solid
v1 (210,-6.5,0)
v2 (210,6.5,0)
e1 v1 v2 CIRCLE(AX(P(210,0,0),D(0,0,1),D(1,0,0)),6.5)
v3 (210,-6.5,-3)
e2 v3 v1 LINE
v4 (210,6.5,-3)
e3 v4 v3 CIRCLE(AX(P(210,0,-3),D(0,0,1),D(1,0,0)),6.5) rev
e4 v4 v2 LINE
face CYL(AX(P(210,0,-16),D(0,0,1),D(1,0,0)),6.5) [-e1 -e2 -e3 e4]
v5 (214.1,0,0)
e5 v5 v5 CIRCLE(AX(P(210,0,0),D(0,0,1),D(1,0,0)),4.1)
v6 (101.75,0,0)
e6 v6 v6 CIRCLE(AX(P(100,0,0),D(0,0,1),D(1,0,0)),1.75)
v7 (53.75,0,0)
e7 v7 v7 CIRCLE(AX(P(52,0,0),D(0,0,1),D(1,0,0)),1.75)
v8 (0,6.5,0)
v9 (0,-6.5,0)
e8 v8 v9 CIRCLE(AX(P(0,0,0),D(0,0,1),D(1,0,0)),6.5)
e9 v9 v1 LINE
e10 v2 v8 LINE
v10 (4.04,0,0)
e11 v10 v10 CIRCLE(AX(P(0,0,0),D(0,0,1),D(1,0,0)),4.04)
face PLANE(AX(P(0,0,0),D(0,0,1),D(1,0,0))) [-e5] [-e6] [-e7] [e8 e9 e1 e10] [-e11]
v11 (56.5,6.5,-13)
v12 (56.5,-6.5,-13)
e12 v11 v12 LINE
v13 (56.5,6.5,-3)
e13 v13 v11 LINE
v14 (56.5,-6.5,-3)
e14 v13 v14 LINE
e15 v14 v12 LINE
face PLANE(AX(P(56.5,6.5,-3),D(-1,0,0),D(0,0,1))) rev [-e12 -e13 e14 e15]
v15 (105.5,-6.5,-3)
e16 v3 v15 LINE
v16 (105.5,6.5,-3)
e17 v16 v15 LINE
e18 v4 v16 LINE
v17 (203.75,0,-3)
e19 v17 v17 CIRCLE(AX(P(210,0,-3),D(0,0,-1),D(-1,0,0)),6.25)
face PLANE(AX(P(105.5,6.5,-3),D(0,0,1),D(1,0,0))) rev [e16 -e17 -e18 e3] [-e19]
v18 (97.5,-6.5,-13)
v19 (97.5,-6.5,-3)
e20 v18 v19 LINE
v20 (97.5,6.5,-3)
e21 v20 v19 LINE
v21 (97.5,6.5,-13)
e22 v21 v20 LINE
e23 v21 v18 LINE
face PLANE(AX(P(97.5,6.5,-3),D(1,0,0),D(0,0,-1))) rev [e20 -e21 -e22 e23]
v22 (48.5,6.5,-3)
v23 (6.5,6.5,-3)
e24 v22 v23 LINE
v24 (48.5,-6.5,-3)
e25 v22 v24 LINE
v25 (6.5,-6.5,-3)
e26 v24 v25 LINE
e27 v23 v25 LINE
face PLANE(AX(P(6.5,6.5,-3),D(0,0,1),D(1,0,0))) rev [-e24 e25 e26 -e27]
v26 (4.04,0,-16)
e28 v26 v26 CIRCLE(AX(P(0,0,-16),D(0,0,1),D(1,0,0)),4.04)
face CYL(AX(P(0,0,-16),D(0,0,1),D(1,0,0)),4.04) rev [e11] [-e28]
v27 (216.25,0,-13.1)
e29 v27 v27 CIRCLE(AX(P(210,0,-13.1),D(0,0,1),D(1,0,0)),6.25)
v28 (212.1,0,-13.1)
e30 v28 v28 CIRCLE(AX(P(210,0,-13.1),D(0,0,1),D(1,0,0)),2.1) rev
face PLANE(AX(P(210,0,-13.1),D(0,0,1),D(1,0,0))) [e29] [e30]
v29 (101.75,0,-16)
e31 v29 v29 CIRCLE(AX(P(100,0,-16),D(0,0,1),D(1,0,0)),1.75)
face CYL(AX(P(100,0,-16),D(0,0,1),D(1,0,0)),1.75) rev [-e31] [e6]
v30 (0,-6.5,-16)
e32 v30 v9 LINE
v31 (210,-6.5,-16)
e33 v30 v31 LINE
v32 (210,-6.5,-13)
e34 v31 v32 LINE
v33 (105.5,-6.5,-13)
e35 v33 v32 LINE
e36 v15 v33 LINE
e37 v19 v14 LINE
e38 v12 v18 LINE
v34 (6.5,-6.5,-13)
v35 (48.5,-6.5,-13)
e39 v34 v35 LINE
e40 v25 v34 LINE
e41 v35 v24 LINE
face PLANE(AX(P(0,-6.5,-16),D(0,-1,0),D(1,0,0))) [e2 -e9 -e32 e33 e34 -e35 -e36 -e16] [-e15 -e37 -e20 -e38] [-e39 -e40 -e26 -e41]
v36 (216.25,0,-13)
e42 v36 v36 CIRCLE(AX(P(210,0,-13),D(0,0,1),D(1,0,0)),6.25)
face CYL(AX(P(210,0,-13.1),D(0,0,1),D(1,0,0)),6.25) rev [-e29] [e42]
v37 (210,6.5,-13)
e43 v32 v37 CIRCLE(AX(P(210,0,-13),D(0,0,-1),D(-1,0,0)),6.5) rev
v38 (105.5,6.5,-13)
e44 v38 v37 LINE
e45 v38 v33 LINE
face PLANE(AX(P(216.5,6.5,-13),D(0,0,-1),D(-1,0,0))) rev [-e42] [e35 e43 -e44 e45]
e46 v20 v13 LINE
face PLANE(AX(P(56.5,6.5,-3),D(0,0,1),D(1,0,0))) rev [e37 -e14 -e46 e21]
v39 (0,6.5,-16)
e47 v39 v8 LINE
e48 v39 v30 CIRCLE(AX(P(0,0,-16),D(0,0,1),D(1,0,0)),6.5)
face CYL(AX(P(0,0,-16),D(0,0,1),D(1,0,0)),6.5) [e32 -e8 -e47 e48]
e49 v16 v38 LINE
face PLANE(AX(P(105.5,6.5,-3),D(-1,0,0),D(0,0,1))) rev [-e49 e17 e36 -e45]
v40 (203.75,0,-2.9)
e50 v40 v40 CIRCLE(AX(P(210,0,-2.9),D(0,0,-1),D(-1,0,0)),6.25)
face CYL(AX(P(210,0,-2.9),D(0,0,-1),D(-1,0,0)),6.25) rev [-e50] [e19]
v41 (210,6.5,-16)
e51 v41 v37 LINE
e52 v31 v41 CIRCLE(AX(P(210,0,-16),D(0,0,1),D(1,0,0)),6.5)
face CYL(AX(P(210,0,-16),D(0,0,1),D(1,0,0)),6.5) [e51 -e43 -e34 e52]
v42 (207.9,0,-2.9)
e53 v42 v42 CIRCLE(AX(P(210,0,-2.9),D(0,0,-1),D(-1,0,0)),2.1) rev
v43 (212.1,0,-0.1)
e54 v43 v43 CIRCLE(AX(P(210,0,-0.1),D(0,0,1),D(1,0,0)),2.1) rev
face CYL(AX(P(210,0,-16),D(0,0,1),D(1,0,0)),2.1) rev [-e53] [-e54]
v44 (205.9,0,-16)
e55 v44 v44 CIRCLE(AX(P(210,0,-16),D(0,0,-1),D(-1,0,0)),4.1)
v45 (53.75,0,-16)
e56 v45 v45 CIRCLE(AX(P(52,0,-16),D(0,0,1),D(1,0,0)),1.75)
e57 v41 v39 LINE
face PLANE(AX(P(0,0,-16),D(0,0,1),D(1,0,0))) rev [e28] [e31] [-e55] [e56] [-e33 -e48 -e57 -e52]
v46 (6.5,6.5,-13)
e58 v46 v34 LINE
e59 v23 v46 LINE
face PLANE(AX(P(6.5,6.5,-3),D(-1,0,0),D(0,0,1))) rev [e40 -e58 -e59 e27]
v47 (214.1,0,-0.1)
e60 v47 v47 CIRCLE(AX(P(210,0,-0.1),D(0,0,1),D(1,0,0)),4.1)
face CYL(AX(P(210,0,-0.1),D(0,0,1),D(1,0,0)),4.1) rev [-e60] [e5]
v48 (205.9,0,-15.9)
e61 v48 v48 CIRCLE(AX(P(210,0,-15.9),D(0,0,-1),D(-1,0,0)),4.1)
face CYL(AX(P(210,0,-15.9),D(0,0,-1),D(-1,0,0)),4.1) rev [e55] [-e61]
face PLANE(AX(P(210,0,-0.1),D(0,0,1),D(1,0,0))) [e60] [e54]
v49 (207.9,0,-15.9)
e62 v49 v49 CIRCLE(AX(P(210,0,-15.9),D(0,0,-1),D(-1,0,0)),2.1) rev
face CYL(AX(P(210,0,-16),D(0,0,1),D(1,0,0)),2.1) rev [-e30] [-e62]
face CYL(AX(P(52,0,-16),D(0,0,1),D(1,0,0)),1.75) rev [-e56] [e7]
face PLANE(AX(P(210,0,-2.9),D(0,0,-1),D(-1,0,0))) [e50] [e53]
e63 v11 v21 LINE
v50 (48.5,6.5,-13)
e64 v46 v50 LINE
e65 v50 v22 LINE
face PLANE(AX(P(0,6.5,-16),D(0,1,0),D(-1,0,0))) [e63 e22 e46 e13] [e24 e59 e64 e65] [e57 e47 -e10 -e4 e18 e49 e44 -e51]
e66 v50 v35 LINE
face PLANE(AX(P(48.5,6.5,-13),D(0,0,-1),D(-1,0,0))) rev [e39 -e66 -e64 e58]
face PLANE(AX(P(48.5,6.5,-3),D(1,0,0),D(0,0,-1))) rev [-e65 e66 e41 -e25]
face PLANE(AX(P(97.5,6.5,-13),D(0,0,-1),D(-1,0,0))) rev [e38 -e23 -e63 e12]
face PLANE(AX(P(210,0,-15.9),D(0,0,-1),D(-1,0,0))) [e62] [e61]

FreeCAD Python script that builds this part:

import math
import FreeCAD as App
import Part
import Sketcher

V = App.Vector


def add_polygon(sketch, points):
    """Adds a closed chain of lines whose ends are joined by coincident constraints."""
    first, n = sketch.GeometryCount, len(points)
    for a, b in zip(points, points[1:] + points[:1]):
        sketch.addGeometry(Part.LineSegment(App.Vector(*a, 0), App.Vector(*b, 0)), False)
    for i in range(n):
        sketch.addConstraint(Sketcher.Constraint("Coincident", first + i, 2, first + (i + 1) % n, 1))

doc = App.newDocument("Part")
body = doc.addObject("PartDesign::Body", "Body")

# Sketch on XY plane
sketch1 = doc.addObject("Sketcher::SketchObject", "Sketch")
body.addObject(sketch1)
sketch1.AttachmentSupport = (doc.XY_Plane, [""])
sketch1.MapMode = "FlatFace"
sketch1.addGeometry(Part.LineSegment(V(210, 6.5, 0), V(0, 6.5, 0)), False)
sketch1.addGeometry(Part.ArcOfCircle(Part.Circle(V(0, 0, 0), V(0, 0, 1), 6.5), math.radians(90), math.radians(270)), False)
sketch1.addGeometry(Part.LineSegment(V(0, -6.5, 0), V(210, -6.5, 0)), False)
sketch1.addGeometry(Part.ArcOfCircle(Part.Circle(V(210, 0, 0), V(0, 0, 1), 6.5), math.radians(-90), math.radians(90)), False)
sketch1.addGeometry(Part.Circle(V(210, 0, 0), V(0, 0, 1), 2.1), False)
sketch1.addGeometry(Part.Circle(V(100, 0, 0), V(0, 0, 1), 1.8), False)
sketch1.addGeometry(Part.Circle(V(52, 0, 0), V(0, 0, 1), 1.8), False)
sketch1.addGeometry(Part.Circle(V(0, 0, 0), V(0, 0, 1), 4), False)
sketch1.addConstraint(Sketcher.Constraint("Tangent", 0, 2, 1, 1))
sketch1.addConstraint(Sketcher.Constraint("Tangent", 1, 2, 2, 1))
sketch1.addConstraint(Sketcher.Constraint("Tangent", 2, 2, 3, 1))
sketch1.addConstraint(Sketcher.Constraint("Tangent", 3, 2, 0, 1))
sketch1.addConstraint(Sketcher.Constraint("Horizontal", 0))
sketch1.addConstraint(Sketcher.Constraint("Horizontal", 2))
sketch1.addConstraint(Sketcher.Constraint("Coincident", 1, 3, -1, 1))
sketch1.addConstraint(Sketcher.Constraint("Coincident", 7, 3, -1, 1))
sketch1.addConstraint(Sketcher.Constraint("Coincident", 4, 3, 3, 3))
sketch1.addConstraint(Sketcher.Constraint("Equal", 5, 6))
sketch1.addConstraint(Sketcher.Constraint("PointOnObject", 5, 3, -1))
sketch1.addConstraint(Sketcher.Constraint("PointOnObject", 6, 3, -1))
sketch1.addConstraint(Sketcher.Constraint("Diameter", 4, 4.2))
sketch1.addConstraint(Sketcher.Constraint("Diameter", 5, 3.5))
sketch1.addConstraint(Sketcher.Constraint("Radius", 1, 6.5))
sketch1.addConstraint(Sketcher.Constraint("Diameter", 7, 8.08))
sketch1.addConstraint(Sketcher.Constraint("DistanceX", 0, 2, 0, 1, 210.0))
sketch1.addConstraint(Sketcher.Constraint("DistanceX", -1, 1, 5, 3, 100.0))
sketch1.addConstraint(Sketcher.Constraint("DistanceX", -1, 1, 6, 3, 52.0))
pad1 = doc.addObject("PartDesign::Pad", "Pad")
body.addObject(pad1)
pad1.Profile = sketch1
pad1.Length = 16
pad1.Reversed = True

# Sketch on XZ plane
sketch2 = doc.addObject("Sketcher::SketchObject", "Sketch001")
body.addObject(sketch2)
sketch2.AttachmentSupport = (doc.XZ_Plane, [""])
sketch2.MapMode = "FlatFace"
sketch2.AttachmentOffset = App.Placement(V(0, 0, 6.5), App.Rotation())
add_polygon(sketch2, [(216, -3), (106, -3), (106, -13), (216, -13)])  # lines 0-3
add_polygon(sketch2, [(6, -3), (6, -13), (48, -13), (48, -3)])  # lines 4-7
add_polygon(sketch2, [(56, -3), (56, -13), (98, -13), (98, -3)])  # lines 8-11
sketch2.addConstraint(Sketcher.Constraint("Horizontal", 0))
sketch2.addConstraint(Sketcher.Constraint("Vertical", 1))
sketch2.addConstraint(Sketcher.Constraint("Horizontal", 2))
sketch2.addConstraint(Sketcher.Constraint("Vertical", 3))
sketch2.addConstraint(Sketcher.Constraint("Vertical", 4))
sketch2.addConstraint(Sketcher.Constraint("Horizontal", 5))
sketch2.addConstraint(Sketcher.Constraint("Vertical", 6))
sketch2.addConstraint(Sketcher.Constraint("Horizontal", 7))
sketch2.addConstraint(Sketcher.Constraint("Vertical", 8))
sketch2.addConstraint(Sketcher.Constraint("Horizontal", 9))
sketch2.addConstraint(Sketcher.Constraint("Vertical", 10))
sketch2.addConstraint(Sketcher.Constraint("Horizontal", 11))
sketch2.addConstraint(Sketcher.Constraint("Horizontal", 2, 2, 4, 2))
sketch2.addConstraint(Sketcher.Constraint("Horizontal", 3, 2, 6, 2))
sketch2.addConstraint(Sketcher.Constraint("Horizontal", 5, 2, 8, 2))
sketch2.addConstraint(Sketcher.Constraint("Horizontal", 7, 2, 10, 2))
sketch2.addConstraint(Sketcher.Constraint("DistanceX", 0, 2, 0, 1, 111.0))
sketch2.addConstraint(Sketcher.Constraint("DistanceX", 5, 1, 5, 2, 42.0))
sketch2.addConstraint(Sketcher.Constraint("DistanceX", 9, 1, 9, 2, 41.0))
sketch2.addConstraint(Sketcher.Constraint("DistanceY", 1, 2, 1, 1, 10.0))
sketch2.addConstraint(Sketcher.Constraint("DistanceY", 0, 2, -1, 1, 3.0))
sketch2.addConstraint(Sketcher.Constraint("DistanceX", 4, 2, 1, 2, 99.0))
sketch2.addConstraint(Sketcher.Constraint("DistanceX", 5, 2, 8, 2, 8.0))
sketch2.addConstraint(Sketcher.Constraint("DistanceX", -1, 1, 0, 2, 105.5))
pocket1 = doc.addObject("PartDesign::Pocket", "Pocket")
body.addObject(pocket1)
pocket1.Profile = sketch2
pocket1.Type = "ThroughAll"

# Sketch on XY plane
sketch3 = doc.addObject("Sketcher::SketchObject", "Sketch002")
body.addObject(sketch3)
sketch3.AttachmentSupport = (doc.XY_Plane, [""])
sketch3.MapMode = "FlatFace"
sketch3.addGeometry(Part.Circle(V(210, 0, 0), V(0, 0, 1), 4.1), False)
sketch3.addConstraint(Sketcher.Constraint("PointOnObject", 0, 3, -1))
sketch3.addConstraint(Sketcher.Constraint("Diameter", 0, 8.2))
sketch3.addConstraint(Sketcher.Constraint("DistanceX", -1, 1, 0, 3, 210.0))
pocket2 = doc.addObject("PartDesign::Pocket", "Pocket001")
body.addObject(pocket2)
pocket2.Profile = sketch3
pocket2.Length = 0.1

# Sketch on XY plane
sketch4 = doc.addObject("Sketcher::SketchObject", "Sketch003")
body.addObject(sketch4)
sketch4.AttachmentSupport = (doc.XY_Plane, [""])
sketch4.MapMode = "FlatFace"
sketch4.AttachmentOffset = App.Placement(V(0, 0, -15.9), App.Rotation())
sketch4.addGeometry(Part.Circle(V(210, 0, 0), V(0, 0, 1), 4.1), False)
sketch4.addConstraint(Sketcher.Constraint("PointOnObject", 0, 3, -1))
sketch4.addConstraint(Sketcher.Constraint("Diameter", 0, 8.2))
sketch4.addConstraint(Sketcher.Constraint("DistanceX", -1, 1, 0, 3, 210.0))
pocket3 = doc.addObject("PartDesign::Pocket", "Pocket002")
body.addObject(pocket3)
pocket3.Profile = sketch4
pocket3.Length = 0.1

# Sketch on XY plane
sketch5 = doc.addObject("Sketcher::SketchObject", "Sketch004")
body.addObject(sketch5)
sketch5.AttachmentSupport = (doc.XY_Plane, [""])
sketch5.MapMode = "FlatFace"
sketch5.AttachmentOffset = App.Placement(V(0, 0, -3), App.Rotation())
sketch5.addGeometry(Part.Circle(V(210, 0, 0), V(0, 0, 1), 6), False)
sketch5.addConstraint(Sketcher.Constraint("PointOnObject", 0, 3, -1))
sketch5.addConstraint(Sketcher.Constraint("Diameter", 0, 12.5))
sketch5.addConstraint(Sketcher.Constraint("DistanceX", -1, 1, 0, 3, 210.0))
pocket4 = doc.addObject("PartDesign::Pocket", "Pocket003")
body.addObject(pocket4)
pocket4.Profile = sketch5
pocket4.Length = 0.1
pocket4.Reversed = True

# Sketch on XY plane
sketch6 = doc.addObject("Sketcher::SketchObject", "Sketch005")
body.addObject(sketch6)
sketch6.AttachmentSupport = (doc.XY_Plane, [""])
sketch6.MapMode = "FlatFace"
sketch6.AttachmentOffset = App.Placement(V(0, 0, -13.1), App.Rotation())
sketch6.addGeometry(Part.Circle(V(210, 0, 0), V(0, 0, 1), 6), False)
sketch6.addConstraint(Sketcher.Constraint("PointOnObject", 0, 3, -1))
sketch6.addConstraint(Sketcher.Constraint("Diameter", 0, 12.5))
sketch6.addConstraint(Sketcher.Constraint("DistanceX", -1, 1, 0, 3, 210.0))
pocket5 = doc.addObject("PartDesign::Pocket", "Pocket004")
body.addObject(pocket5)
pocket5.Profile = sketch6
pocket5.Length = 0.1
pocket5.Reversed = True

doc.recompute()
